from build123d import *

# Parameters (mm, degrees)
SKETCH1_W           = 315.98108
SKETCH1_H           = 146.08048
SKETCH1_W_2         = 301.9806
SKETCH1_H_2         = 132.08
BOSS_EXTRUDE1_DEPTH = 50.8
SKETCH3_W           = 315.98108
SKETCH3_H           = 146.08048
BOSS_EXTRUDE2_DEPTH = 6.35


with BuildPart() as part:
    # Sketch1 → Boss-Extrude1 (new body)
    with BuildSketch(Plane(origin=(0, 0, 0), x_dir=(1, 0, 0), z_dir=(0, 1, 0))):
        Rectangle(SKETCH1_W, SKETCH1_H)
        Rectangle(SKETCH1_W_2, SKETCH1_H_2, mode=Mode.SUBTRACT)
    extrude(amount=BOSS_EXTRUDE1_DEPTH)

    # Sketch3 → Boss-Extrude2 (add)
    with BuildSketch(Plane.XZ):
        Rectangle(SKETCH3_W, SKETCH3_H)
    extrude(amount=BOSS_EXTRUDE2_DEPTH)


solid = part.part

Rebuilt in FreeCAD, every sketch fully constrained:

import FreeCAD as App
import Part
import Sketcher
Q = App.Units.Quantity


def add_polygon(sketch, points):
    """Adds a closed chain of lines whose ends are joined by coincident constraints."""
    first, n = sketch.GeometryCount, len(points)
    for a, b in zip(points, points[1:] + points[:1]):
        sketch.addGeometry(Part.LineSegment(App.Vector(*a, 0), App.Vector(*b, 0)), False)
    for i in range(n):
        sketch.addConstraint(Sketcher.Constraint("Coincident", first + i, 2, first + (i + 1) % n, 1))

doc = App.newDocument("Part")
body = doc.addObject("PartDesign::Body", "Body")

# Sketch on XZ plane
sketch1 = doc.addObject("Sketcher::SketchObject", "Sketch")
body.addObject(sketch1)
sketch1.AttachmentSupport = (doc.XZ_Plane, [""])
sketch1.MapMode = "FlatFace"
add_polygon(sketch1, [(-158, -73), (-158, 73), (158, 73), (158, -73)])  # lines 0-3
add_polygon(sketch1, [(151, 66), (-151, 66), (-151, -66), (151, -66)])  # lines 4-7
sketch1.addConstraint([
    Sketcher.Constraint("Vertical", 0),
    Sketcher.Constraint("Horizontal", 1),
    Sketcher.Constraint("Vertical", 2),
    Sketcher.Constraint("Horizontal", 3),
    Sketcher.Constraint("Horizontal", 4),
    Sketcher.Constraint("Vertical", 5),
    Sketcher.Constraint("Horizontal", 6),
    Sketcher.Constraint("Vertical", 7),
    Sketcher.Constraint("Symmetric", 0, 2, 2, 2, -1, 1),
    Sketcher.Constraint("Symmetric", 4, 2, 6, 2, -1, 1),
    Sketcher.Constraint("DistanceY", 5, 2, 5, 1, Q("5.2 in")),
    Sketcher.Constraint("DistanceX", 4, 2, 4, 1, Q("11.889 in")),
    Sketcher.Constraint("DistanceX", 1, 1, 1, 2, Q("12.4402 in")),
    Sketcher.Constraint("DistanceY", 0, 1, 0, 2, Q("5.7512 in")),
])
pad1 = doc.addObject("PartDesign::Pad", "Pad")
body.addObject(pad1)
pad1.Profile = sketch1
pad1.Length = Q("2 in")
pad1.Reversed = True

# Sketch on XZ plane
sketch2 = doc.addObject("Sketcher::SketchObject", "Sketch001")
body.addObject(sketch2)
sketch2.AttachmentSupport = (doc.XZ_Plane, [""])
sketch2.MapMode = "FlatFace"
add_polygon(sketch2, [(-158, 73), (-158, -73), (158, -73), (158, 73)])  # lines 0-3
sketch2.addConstraint([
    Sketcher.Constraint("Vertical", 0),
    Sketcher.Constraint("Horizontal", 1),
    Sketcher.Constraint("Vertical", 2),
    Sketcher.Constraint("Horizontal", 3),
    Sketcher.Constraint("Symmetric", 0, 2, 2, 2, -1, 1),
    Sketcher.Constraint("DistanceX", 1, 1, 1, 2, Q("12.4402 in")),
    Sketcher.Constraint("DistanceY", 0, 2, 0, 1, Q("5.7512 in")),
])
pad2 = doc.addObject("PartDesign::Pad", "Pad001")
body.addObject(pad2)
pad2.Profile = sketch2
pad2.Length = Q("0.25 in")

doc.recompute()
